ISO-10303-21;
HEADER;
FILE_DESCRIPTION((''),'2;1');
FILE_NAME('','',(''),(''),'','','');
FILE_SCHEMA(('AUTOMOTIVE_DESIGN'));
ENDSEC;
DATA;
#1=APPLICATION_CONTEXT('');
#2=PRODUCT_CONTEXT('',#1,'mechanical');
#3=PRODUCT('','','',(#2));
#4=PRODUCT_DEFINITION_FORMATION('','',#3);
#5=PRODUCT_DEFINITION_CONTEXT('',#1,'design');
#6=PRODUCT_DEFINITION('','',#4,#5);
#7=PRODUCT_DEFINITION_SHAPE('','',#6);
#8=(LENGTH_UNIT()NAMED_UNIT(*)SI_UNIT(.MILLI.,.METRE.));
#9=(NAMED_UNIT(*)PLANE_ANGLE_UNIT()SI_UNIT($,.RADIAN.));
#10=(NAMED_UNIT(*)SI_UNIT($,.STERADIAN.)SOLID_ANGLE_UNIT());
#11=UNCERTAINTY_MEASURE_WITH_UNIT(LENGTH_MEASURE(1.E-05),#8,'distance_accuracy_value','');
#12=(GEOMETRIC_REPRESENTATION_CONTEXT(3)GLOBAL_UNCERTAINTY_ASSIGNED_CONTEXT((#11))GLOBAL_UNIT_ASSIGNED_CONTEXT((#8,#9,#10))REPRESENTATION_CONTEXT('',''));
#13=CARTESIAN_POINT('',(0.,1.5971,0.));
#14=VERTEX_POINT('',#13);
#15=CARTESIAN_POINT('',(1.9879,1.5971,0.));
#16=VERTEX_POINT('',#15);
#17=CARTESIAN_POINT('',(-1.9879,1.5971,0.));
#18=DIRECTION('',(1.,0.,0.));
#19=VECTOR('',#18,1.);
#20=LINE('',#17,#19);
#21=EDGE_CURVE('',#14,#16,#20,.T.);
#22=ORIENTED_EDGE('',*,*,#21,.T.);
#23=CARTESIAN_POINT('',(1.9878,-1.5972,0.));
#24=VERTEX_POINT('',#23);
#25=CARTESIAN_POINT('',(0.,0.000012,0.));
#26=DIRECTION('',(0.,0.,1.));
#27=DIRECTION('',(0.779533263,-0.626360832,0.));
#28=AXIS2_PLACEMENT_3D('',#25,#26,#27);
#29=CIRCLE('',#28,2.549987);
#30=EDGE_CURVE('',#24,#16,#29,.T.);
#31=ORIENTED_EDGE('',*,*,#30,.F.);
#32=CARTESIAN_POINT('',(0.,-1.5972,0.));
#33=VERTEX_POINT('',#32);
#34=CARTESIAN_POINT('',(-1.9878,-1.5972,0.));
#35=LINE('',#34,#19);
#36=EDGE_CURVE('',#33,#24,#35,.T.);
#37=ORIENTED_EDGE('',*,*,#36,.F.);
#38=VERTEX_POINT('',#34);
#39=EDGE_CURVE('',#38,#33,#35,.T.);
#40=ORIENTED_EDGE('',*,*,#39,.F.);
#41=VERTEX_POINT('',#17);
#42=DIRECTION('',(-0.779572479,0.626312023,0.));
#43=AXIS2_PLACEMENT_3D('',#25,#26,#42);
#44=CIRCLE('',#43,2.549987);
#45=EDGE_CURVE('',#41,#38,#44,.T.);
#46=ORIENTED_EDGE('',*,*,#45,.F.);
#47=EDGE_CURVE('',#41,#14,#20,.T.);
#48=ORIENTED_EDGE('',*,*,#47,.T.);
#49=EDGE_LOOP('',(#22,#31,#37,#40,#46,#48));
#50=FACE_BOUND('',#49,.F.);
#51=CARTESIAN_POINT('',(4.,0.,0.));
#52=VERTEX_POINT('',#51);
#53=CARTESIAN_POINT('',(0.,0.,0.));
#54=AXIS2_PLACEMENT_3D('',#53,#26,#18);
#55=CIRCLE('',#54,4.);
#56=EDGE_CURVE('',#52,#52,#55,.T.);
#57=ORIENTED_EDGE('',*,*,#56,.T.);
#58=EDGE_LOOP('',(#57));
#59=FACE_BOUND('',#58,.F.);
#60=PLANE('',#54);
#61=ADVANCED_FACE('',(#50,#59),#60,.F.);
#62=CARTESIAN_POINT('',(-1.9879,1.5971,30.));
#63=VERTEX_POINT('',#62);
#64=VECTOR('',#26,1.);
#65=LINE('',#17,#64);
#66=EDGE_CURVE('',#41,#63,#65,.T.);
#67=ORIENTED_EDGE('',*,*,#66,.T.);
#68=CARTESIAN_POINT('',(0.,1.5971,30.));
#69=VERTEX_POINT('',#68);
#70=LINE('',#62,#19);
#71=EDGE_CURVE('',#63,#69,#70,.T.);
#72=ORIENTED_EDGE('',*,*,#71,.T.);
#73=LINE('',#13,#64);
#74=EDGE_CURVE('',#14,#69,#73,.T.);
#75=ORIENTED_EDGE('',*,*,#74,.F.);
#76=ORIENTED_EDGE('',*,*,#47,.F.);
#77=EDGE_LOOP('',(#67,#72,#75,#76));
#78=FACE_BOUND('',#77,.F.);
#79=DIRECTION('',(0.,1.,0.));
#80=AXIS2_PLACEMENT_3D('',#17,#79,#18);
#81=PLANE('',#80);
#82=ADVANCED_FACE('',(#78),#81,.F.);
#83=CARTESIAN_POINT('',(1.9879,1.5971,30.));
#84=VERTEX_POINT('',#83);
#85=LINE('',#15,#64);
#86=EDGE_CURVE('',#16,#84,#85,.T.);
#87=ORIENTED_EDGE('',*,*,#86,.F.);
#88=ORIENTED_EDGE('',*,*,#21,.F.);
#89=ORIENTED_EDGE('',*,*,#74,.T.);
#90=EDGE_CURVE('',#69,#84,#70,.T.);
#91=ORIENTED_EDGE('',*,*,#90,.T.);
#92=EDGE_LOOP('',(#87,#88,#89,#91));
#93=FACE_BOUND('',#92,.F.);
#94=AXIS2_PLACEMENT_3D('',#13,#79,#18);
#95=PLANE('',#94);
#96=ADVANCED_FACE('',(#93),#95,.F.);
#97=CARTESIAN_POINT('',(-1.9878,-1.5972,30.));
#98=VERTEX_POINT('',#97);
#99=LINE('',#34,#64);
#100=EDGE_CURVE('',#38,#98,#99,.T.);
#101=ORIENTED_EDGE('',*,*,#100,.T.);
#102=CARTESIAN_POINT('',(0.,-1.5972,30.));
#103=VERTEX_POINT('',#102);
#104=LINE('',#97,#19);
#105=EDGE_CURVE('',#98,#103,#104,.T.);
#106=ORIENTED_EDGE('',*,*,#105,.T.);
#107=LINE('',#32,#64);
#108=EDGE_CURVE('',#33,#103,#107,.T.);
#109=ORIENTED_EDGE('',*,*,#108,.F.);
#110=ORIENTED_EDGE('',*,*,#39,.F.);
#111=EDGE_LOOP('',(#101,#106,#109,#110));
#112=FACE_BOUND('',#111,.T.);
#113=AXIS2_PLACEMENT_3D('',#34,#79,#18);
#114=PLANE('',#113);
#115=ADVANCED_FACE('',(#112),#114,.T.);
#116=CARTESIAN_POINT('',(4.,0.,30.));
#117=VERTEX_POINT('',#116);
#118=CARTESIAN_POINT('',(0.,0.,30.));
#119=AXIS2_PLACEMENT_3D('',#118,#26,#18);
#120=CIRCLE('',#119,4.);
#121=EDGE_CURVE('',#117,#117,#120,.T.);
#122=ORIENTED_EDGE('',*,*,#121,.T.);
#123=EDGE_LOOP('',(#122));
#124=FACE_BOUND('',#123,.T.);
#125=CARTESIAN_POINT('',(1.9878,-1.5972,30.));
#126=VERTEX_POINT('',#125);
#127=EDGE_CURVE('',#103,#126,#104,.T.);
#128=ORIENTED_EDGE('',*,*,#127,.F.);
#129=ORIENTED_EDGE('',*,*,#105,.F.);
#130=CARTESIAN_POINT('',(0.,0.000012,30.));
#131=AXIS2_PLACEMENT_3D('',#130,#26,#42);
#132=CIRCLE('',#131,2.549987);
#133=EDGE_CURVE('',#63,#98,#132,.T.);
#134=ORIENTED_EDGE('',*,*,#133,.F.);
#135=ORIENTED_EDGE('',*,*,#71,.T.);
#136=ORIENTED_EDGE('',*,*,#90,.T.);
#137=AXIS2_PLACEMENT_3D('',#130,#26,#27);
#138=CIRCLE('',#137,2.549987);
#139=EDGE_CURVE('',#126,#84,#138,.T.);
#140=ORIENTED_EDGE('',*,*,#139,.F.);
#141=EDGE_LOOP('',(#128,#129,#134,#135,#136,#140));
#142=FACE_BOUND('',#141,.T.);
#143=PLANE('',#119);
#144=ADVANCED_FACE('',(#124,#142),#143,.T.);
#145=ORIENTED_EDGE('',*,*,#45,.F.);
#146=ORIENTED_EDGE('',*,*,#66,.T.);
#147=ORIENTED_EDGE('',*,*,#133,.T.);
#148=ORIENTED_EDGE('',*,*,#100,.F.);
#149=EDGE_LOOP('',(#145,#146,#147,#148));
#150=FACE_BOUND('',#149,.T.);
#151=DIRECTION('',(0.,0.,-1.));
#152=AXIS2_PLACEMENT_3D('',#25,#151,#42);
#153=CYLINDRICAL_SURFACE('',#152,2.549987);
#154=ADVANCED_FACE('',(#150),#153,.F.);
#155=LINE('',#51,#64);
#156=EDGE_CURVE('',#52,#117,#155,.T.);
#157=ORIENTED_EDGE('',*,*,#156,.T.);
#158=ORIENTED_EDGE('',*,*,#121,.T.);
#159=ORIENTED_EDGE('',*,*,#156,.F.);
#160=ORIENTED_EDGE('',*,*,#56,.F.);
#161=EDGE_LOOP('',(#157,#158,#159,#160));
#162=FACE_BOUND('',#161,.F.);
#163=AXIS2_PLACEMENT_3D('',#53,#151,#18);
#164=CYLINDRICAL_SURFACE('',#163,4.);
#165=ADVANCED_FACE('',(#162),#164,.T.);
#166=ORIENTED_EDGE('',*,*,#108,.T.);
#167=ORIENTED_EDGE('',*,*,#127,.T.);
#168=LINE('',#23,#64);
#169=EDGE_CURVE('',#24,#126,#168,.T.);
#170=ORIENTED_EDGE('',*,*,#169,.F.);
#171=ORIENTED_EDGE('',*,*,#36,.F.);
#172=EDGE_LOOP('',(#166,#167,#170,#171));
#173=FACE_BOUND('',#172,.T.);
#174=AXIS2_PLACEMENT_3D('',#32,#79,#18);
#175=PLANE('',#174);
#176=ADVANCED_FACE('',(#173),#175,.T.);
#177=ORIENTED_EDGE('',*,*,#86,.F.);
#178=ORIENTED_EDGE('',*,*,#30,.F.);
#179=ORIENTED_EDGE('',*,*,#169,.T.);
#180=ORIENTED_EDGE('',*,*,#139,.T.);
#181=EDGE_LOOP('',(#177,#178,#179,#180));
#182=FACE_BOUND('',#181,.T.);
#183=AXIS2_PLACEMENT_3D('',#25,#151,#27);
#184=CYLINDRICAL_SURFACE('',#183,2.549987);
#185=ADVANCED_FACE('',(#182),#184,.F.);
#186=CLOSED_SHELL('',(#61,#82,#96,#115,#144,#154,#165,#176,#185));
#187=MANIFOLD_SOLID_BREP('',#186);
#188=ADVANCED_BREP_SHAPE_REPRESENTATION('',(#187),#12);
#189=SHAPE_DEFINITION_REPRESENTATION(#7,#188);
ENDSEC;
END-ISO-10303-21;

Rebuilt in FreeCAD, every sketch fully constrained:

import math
import FreeCAD as App
import Part
import Sketcher

V = App.Vector
Q = App.Units.Quantity

doc = App.newDocument("Part")
body = doc.addObject("PartDesign::Body", "Body")

# Sketch on XY plane
sketch1 = body.newObject("Sketcher::SketchObject", "Sketch")
sketch1.AttachmentSupport = (doc.getObject("XY_Plane"), [""])
sketch1.MapMode = "FlatFace"
sketch1.addGeometry([
    Part.Circle(V(0, 0, 0), V(0, 0, 1), 4),  # 0
    Part.LineSegment(V(-2, 1.6, 0), V(2, 1.6, 0)),  # 1
    Part.ArcOfCircle(Part.Circle(V(0, 0, 0), V(0, 0, 1), 2.5), math.radians(-39), math.radians(39)),  # 2
    Part.LineSegment(V(2, -1.6, 0), V(-2, -1.6, 0)),  # 3
    Part.ArcOfCircle(Part.Circle(V(0, 0, 0), V(0, 0, 1), 2.5), math.radians(141), math.radians(219)),  # 4
], False)
sketch1.addConstraint([
    Sketcher.Constraint("Coincident", 1, 2, 2, 2),
    Sketcher.Constraint("Coincident", 2, 1, 3, 1),
    Sketcher.Constraint("Coincident", 3, 2, 4, 2),
    Sketcher.Constraint("Coincident", 4, 1, 1, 1),
    Sketcher.Constraint("Horizontal", 1),
    Sketcher.Constraint("Horizontal", 3),
    Sketcher.Constraint("Coincident", 0, 3, -1, 1),
    Sketcher.Constraint("Coincident", 2, 3, -1, 1),
    Sketcher.Constraint("Coincident", 4, 3, -1, 1),
    Sketcher.Constraint("Equal", 2, 4),
    Sketcher.Constraint("Vertical", 1, 2, 2, 1),
    Sketcher.Constraint("Diameter", 0, Q("8 mm")),
    Sketcher.Constraint("Radius", 2, Q("2.55 mm")),
    Sketcher.Constraint("DistanceX", 1, 1, 1, 2, Q("3.9758 mm")),
])
pad1 = body.newObject("PartDesign::Pad", "Pad")
pad1.Profile = sketch1
pad1.Length = 30

doc.recompute()
